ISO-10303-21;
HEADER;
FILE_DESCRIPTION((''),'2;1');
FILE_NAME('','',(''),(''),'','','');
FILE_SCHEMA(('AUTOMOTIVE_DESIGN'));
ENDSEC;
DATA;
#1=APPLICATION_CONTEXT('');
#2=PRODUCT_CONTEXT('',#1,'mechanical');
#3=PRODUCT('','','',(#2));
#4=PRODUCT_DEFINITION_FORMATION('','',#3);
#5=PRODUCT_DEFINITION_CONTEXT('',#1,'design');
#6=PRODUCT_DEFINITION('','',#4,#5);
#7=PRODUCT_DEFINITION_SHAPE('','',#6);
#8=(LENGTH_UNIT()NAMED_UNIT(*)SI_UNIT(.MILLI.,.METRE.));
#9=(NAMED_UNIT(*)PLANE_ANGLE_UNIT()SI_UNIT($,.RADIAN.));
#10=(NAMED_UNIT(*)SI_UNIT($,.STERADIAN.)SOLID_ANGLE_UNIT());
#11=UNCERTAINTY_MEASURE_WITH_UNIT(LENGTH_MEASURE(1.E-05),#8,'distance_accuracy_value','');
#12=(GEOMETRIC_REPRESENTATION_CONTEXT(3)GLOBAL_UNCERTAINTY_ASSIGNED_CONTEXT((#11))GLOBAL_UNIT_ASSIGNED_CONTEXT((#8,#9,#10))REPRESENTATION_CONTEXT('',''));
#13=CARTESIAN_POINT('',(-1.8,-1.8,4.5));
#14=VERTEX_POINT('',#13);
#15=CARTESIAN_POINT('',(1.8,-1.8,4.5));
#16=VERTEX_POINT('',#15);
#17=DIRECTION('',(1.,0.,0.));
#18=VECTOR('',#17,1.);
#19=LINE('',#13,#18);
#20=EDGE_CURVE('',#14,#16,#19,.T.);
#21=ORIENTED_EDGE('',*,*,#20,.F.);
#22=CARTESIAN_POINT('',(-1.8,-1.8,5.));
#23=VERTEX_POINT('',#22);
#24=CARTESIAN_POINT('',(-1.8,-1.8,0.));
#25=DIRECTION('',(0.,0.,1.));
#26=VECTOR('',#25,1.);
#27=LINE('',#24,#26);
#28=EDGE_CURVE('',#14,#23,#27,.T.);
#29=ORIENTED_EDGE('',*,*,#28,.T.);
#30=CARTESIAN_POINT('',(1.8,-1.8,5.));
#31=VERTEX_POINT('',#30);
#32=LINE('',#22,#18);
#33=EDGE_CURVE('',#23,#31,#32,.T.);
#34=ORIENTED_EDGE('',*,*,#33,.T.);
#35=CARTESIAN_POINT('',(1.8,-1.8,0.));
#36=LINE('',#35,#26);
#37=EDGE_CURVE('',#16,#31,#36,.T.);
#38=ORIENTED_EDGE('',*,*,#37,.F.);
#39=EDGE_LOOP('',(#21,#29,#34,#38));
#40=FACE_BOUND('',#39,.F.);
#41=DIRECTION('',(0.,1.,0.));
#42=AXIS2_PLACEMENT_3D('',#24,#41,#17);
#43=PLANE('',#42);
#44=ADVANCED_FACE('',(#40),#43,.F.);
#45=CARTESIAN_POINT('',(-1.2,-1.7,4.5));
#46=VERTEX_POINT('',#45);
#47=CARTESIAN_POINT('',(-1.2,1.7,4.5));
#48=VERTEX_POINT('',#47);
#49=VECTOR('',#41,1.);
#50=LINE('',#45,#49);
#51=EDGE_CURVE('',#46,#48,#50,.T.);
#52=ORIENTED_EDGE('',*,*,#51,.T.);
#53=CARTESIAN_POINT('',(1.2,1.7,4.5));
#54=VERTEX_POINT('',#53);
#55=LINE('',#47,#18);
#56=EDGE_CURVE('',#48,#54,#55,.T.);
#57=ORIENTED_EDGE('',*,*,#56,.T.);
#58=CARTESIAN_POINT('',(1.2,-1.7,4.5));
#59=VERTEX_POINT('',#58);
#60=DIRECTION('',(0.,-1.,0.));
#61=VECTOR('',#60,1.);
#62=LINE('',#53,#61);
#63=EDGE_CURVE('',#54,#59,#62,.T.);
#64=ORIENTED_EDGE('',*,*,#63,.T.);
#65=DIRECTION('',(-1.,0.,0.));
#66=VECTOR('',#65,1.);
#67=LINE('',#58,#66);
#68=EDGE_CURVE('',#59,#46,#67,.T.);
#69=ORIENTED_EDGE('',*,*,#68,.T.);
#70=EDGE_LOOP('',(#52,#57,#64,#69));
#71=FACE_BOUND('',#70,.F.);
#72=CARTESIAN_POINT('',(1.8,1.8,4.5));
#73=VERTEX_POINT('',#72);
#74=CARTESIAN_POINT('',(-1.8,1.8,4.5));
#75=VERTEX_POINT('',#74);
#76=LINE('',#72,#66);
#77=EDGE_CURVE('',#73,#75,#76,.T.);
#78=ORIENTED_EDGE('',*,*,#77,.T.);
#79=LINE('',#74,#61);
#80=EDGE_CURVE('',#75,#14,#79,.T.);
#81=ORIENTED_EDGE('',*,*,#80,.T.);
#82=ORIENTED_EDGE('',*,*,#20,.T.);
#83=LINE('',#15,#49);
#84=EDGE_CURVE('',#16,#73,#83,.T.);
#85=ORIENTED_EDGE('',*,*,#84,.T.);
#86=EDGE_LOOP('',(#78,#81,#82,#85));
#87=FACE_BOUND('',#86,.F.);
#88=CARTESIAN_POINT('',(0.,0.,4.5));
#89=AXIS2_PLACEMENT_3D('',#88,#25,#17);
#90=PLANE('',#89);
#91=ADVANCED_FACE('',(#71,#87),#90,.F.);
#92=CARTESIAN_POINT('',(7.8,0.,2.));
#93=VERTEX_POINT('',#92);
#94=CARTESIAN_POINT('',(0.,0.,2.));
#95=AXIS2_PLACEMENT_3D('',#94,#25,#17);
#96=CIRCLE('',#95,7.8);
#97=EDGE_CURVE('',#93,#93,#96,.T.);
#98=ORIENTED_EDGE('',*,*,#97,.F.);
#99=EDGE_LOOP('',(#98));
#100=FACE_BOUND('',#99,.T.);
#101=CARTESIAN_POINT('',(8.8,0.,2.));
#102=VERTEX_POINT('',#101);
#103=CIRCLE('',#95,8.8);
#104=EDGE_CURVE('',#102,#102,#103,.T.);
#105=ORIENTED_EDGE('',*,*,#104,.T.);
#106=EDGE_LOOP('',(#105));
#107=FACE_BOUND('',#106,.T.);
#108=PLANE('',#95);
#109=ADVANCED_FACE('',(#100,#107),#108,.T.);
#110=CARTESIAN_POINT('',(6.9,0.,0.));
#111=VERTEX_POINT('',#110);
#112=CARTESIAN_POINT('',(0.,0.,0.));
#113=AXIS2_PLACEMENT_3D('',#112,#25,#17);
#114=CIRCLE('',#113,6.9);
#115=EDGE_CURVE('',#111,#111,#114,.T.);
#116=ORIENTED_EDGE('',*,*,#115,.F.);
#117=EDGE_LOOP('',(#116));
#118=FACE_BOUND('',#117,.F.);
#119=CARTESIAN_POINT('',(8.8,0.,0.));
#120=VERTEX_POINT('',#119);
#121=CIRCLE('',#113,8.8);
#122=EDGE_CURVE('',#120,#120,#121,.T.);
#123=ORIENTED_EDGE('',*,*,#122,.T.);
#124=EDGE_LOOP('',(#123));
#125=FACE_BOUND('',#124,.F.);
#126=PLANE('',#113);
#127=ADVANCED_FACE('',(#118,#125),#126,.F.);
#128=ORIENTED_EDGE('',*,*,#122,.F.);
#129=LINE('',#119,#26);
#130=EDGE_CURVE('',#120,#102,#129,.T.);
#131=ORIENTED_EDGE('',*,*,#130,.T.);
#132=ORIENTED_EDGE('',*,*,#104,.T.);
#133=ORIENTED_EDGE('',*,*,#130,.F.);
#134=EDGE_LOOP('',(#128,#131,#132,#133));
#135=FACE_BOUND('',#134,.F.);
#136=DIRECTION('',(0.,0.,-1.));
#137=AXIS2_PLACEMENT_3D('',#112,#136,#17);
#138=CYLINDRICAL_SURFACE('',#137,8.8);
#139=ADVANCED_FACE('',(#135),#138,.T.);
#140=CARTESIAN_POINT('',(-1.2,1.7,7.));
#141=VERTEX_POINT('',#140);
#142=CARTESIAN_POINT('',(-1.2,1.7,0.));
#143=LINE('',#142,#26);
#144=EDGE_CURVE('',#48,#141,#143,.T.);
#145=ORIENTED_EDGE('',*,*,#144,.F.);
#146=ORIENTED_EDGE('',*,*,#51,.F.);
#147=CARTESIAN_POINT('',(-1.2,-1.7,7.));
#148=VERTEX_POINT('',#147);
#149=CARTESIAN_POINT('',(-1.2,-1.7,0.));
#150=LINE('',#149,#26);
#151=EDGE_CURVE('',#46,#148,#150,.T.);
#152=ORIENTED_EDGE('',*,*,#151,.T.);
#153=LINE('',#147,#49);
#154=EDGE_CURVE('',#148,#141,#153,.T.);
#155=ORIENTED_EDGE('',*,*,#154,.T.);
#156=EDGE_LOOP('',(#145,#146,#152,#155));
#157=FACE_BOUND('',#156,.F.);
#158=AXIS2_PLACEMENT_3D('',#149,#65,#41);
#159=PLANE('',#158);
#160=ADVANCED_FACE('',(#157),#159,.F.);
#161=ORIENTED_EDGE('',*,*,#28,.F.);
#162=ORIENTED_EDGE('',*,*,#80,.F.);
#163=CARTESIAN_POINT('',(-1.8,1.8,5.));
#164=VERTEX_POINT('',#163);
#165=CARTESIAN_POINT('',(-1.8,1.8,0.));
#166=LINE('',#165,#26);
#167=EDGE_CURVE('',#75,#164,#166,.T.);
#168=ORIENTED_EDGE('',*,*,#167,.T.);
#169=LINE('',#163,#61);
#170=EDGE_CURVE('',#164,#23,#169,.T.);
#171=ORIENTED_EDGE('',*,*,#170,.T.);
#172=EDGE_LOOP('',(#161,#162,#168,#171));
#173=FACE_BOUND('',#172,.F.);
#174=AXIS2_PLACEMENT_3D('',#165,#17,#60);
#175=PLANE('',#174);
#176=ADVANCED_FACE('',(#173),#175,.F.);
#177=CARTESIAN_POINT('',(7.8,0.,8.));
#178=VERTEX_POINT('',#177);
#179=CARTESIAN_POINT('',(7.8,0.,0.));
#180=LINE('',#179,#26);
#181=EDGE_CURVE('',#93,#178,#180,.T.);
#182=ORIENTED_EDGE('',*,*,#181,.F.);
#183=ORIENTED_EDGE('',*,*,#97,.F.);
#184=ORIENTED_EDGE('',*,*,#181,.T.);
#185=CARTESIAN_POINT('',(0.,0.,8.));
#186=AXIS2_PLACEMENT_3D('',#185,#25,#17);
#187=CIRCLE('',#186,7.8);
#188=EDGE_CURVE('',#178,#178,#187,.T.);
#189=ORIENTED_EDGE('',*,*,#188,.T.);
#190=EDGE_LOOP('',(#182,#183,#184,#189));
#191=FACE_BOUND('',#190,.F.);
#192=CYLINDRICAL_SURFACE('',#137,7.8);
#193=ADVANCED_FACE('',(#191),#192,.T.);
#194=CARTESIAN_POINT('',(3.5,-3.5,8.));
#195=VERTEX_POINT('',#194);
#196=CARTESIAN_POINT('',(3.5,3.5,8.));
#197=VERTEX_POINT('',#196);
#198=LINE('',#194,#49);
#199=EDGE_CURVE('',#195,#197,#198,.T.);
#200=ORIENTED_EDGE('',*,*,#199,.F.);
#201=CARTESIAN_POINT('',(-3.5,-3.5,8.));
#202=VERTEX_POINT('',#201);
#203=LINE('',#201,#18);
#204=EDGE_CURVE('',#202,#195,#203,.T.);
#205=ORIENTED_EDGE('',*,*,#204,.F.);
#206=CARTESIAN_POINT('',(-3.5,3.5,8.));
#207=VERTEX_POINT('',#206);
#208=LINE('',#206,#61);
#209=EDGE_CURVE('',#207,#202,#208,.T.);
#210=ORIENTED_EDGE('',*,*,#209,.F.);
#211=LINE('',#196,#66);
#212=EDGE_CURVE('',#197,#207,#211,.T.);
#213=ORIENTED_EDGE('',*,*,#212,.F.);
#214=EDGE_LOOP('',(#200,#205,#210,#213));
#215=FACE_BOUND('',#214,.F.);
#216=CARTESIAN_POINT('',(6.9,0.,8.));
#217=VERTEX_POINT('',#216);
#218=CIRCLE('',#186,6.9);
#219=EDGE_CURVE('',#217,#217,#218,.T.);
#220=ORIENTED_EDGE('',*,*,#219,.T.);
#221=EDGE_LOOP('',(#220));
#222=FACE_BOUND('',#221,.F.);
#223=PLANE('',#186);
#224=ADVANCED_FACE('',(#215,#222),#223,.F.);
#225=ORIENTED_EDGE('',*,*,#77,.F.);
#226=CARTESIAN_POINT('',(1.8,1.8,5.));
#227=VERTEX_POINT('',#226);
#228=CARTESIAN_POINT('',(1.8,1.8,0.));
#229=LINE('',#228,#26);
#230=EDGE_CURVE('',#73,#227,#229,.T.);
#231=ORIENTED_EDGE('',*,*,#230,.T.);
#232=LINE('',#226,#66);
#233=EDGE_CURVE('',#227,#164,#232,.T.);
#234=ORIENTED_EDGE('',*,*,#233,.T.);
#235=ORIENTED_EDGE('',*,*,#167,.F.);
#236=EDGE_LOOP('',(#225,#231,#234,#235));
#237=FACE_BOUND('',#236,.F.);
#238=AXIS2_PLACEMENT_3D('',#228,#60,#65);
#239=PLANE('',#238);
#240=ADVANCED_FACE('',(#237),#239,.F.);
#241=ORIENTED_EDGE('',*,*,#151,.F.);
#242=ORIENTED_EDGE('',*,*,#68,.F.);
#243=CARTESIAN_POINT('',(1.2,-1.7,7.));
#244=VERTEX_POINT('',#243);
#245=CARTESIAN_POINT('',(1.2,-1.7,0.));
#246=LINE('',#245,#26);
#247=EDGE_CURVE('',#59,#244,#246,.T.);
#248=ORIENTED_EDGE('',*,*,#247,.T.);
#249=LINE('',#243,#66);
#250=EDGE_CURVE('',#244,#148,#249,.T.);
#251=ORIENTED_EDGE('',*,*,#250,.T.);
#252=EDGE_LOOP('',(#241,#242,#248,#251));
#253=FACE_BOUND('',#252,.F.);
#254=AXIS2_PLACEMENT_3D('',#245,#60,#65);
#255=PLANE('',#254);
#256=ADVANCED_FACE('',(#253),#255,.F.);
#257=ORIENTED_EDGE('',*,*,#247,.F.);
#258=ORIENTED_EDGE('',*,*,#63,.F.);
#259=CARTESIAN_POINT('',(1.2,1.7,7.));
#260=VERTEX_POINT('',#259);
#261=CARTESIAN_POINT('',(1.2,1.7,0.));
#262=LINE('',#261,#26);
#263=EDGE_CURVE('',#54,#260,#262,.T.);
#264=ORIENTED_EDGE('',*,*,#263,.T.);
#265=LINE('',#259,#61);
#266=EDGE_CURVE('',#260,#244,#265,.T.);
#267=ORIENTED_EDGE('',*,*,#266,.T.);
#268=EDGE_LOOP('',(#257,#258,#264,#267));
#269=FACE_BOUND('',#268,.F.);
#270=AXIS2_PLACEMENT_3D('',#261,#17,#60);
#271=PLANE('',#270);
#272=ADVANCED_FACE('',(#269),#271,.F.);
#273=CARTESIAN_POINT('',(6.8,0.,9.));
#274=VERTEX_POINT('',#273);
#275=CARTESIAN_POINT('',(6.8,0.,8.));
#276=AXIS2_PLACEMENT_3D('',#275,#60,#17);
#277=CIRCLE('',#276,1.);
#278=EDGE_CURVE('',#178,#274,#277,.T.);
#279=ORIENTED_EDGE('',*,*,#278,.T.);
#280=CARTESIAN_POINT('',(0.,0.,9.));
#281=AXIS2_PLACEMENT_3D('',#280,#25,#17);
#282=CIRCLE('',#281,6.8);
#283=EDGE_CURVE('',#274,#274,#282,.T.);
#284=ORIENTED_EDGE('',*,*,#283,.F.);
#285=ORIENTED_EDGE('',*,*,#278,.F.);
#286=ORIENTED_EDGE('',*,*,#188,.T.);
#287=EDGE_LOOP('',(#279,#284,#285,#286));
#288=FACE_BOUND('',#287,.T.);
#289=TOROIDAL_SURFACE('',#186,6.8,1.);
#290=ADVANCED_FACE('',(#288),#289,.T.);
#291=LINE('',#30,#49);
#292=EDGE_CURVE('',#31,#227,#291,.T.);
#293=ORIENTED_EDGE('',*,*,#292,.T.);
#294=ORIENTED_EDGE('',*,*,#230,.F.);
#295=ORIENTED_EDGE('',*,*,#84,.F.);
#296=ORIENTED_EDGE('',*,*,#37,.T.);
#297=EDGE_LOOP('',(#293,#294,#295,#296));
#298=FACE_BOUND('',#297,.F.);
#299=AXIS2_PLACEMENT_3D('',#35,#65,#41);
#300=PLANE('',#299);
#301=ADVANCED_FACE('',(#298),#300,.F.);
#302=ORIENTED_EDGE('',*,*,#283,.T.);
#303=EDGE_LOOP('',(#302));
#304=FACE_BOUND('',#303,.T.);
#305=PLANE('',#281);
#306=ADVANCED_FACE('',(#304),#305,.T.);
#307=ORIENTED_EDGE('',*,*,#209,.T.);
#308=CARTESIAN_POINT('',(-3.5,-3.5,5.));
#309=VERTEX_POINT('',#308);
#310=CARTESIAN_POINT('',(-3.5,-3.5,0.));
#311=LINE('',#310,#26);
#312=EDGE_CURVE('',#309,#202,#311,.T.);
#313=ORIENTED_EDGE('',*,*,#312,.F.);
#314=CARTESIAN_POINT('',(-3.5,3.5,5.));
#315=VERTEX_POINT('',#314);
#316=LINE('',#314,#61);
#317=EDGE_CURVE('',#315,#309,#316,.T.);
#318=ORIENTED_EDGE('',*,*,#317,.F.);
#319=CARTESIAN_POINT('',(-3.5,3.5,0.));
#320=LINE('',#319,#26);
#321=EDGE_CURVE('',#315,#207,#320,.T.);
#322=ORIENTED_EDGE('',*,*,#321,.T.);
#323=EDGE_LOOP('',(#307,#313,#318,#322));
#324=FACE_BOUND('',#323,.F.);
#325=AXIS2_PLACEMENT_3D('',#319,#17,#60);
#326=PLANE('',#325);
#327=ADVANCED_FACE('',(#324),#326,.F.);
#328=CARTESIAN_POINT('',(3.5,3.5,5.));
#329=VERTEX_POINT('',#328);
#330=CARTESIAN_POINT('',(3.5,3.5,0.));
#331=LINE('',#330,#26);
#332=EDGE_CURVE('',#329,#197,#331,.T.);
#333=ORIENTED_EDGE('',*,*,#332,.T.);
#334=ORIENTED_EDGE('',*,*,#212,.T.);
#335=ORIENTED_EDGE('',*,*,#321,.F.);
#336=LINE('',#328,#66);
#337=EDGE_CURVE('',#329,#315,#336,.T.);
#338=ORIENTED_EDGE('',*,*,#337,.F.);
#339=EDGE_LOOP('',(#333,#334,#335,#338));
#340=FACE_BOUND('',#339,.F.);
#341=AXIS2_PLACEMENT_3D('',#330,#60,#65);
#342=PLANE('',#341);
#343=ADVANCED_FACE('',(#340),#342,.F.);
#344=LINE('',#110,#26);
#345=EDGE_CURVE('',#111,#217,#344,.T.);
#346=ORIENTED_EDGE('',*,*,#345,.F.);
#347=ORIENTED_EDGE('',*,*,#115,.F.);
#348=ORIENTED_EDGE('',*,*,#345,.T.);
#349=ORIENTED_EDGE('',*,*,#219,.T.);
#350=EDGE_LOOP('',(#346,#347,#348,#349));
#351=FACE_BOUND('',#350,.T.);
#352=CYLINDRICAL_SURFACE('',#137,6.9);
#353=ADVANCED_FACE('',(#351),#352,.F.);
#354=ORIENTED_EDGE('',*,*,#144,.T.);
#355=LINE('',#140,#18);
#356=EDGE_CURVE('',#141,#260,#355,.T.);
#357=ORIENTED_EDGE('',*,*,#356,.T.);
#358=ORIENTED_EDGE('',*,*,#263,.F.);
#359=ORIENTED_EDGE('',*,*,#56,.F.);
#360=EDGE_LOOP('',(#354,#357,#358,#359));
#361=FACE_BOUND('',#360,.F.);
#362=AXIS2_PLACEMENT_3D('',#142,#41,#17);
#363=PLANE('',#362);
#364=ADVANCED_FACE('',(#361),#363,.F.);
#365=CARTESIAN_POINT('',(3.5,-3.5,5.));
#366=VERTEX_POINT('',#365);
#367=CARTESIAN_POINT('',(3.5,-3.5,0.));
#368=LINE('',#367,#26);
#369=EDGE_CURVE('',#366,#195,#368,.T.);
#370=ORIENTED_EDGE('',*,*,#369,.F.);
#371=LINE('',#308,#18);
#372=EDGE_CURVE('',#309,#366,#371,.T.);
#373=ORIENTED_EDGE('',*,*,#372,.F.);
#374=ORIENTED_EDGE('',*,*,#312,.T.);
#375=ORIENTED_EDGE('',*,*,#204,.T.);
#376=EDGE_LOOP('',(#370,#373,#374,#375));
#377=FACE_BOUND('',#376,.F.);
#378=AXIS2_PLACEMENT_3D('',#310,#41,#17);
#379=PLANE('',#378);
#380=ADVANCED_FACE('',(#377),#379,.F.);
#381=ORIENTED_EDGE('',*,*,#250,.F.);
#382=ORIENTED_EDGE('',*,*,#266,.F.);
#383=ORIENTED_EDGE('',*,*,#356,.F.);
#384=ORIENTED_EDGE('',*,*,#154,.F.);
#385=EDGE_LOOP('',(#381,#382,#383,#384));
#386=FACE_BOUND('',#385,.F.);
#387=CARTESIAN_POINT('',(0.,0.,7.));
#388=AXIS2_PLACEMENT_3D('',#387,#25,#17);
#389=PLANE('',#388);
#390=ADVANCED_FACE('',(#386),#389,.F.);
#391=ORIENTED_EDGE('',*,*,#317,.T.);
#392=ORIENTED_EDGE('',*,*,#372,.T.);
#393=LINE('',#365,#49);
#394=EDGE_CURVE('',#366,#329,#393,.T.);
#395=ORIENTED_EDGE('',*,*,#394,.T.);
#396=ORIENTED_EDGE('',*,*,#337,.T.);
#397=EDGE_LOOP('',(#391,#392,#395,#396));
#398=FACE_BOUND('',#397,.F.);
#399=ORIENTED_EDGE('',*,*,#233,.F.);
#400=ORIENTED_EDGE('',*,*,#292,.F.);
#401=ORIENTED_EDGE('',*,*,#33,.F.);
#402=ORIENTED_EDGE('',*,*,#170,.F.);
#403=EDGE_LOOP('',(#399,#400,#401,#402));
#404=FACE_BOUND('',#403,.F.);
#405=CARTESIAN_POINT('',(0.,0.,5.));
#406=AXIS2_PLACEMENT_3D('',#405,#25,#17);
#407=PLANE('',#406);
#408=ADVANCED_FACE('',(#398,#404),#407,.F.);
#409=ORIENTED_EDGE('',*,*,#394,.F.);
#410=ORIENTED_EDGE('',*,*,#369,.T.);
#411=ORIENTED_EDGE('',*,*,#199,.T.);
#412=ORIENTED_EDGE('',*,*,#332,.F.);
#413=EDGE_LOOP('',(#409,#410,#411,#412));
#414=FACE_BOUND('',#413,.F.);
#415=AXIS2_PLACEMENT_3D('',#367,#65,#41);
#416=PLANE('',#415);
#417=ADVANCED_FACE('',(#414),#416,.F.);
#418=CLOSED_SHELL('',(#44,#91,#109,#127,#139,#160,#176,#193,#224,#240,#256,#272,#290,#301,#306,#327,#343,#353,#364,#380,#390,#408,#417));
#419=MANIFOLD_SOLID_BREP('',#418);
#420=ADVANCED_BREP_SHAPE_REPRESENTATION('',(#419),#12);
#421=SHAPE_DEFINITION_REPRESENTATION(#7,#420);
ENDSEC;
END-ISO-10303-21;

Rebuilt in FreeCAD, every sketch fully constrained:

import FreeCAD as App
import Part
import Sketcher
from FreeCAD import Vector


def edges_at(feature, points):
    """Names of the edges that pass closest to the given points."""
    edges = feature.Shape.Edges
    near = lambda p: min(range(len(edges)), key=lambda i: edges[i].distToShape(Part.Vertex(*p))[0])
    return sorted({f"Edge{near(p) + 1}" for p in points})


def add_polygon(sketch, points):
    """Adds a closed chain of lines whose ends are joined by coincident constraints."""
    first, n = sketch.GeometryCount, len(points)
    for a, b in zip(points, points[1:] + points[:1]):
        sketch.addGeometry(Part.LineSegment(App.Vector(*a, 0), App.Vector(*b, 0)), False)
    for i in range(n):
        sketch.addConstraint(Sketcher.Constraint("Coincident", first + i, 2, first + (i + 1) % n, 1))

doc = App.newDocument("Part")
body = doc.addObject("PartDesign::Body", "Body")

sketch1 = body.newObject("Sketcher::SketchObject", "Sketch")
sketch1.AttachmentSupport = (doc.getObject("XY_Plane"), [""])
sketch1.MapMode = "FlatFace"
sketch1.addGeometry(Part.Circle(Vector(0, 0, 0), Vector(0, 0, 1), 8), False)
sketch1.addConstraint(Sketcher.Constraint("Coincident", 0, 3, -1, 1))
sketch1.addConstraint(Sketcher.Constraint("Diameter", 0, 15.6))
pad1 = body.newObject("PartDesign::Pad", "Pad")
pad1.Profile = sketch1
pad1.Length = 9

sketch2 = body.newObject("Sketcher::SketchObject", "Sketch001")
sketch2.AttachmentSupport = (doc.getObject("XY_Plane"), [""])
sketch2.MapMode = "FlatFace"
sketch2.addGeometry(Part.Circle(Vector(0, 0, 0), Vector(0, 0, 1), 9), False)
sketch2.addGeometry(Part.Circle(Vector(0, 0, 0), Vector(0, 0, 1), 8), False)
sketch2.addConstraint(Sketcher.Constraint("Coincident", 0, 3, -1, 1))
sketch2.addConstraint(Sketcher.Constraint("Coincident", 1, 3, -1, 1))
sketch2.addConstraint(Sketcher.Constraint("Diameter", 0, 17.6))
sketch2.addConstraint(Sketcher.Constraint("Diameter", 1, 15.6))
pad2 = body.newObject("PartDesign::Pad", "Pad001")
pad2.Profile = sketch2
pad2.Length = 2

sketch3 = body.newObject("Sketcher::SketchObject", "Sketch002")
sketch3.AttachmentSupport = (doc.getObject("XY_Plane"), [""])
sketch3.MapMode = "FlatFace"
sketch3.addGeometry(Part.Circle(Vector(0, 0, 0), Vector(0, 0, 1), 7), False)
add_polygon(sketch3, [(4, -4), (-4, -4), (-4, 4), (4, 4)])
sketch3.addConstraint(Sketcher.Constraint("Horizontal", 1))
sketch3.addConstraint(Sketcher.Constraint("Vertical", 2))
sketch3.addConstraint(Sketcher.Constraint("Horizontal", 3))
sketch3.addConstraint(Sketcher.Constraint("Vertical", 4))
sketch3.addConstraint(Sketcher.Constraint("Coincident", 0, 3, -1, 1))
sketch3.addConstraint(Sketcher.Constraint("Symmetric", 1, 2, 3, 2, -1, 1))
sketch3.addConstraint(Sketcher.Constraint("Equal", 3, 2))
sketch3.addConstraint(Sketcher.Constraint("Diameter", 0, 13.8))
sketch3.addConstraint(Sketcher.Constraint("DistanceX", 1, 2, 1, 1, 7.0))
pocket1 = body.newObject("PartDesign::Pocket", "Pocket")
pocket1.Profile = sketch3
pocket1.Length = 8
pocket1.Reversed = True

sketch4 = body.newObject("Sketcher::SketchObject", "Sketch003")
sketch4.AttachmentSupport = (doc.getObject("XY_Plane"), [""])
sketch4.MapMode = "FlatFace"
add_polygon(sketch4, [(-3.5, 3.5), (-3.5, -3.5), (3.5, -3.5), (3.5, 3.5)])
add_polygon(sketch4, [(1.8, -1.8), (-1.8, -1.8), (-1.8, 1.8), (1.8, 1.8)])
sketch4.addConstraint(Sketcher.Constraint("Vertical", 0))
sketch4.addConstraint(Sketcher.Constraint("Horizontal", 1))
sketch4.addConstraint(Sketcher.Constraint("Vertical", 2))
sketch4.addConstraint(Sketcher.Constraint("Horizontal", 3))
sketch4.addConstraint(Sketcher.Constraint("Horizontal", 4))
sketch4.addConstraint(Sketcher.Constraint("Vertical", 5))
sketch4.addConstraint(Sketcher.Constraint("Horizontal", 6))
sketch4.addConstraint(Sketcher.Constraint("Vertical", 7))
sketch4.addConstraint(Sketcher.Constraint("Symmetric", 0, 2, 2, 2, -1, 1))
sketch4.addConstraint(Sketcher.Constraint("Symmetric", 4, 2, 6, 2, -1, 1))
sketch4.addConstraint(Sketcher.Constraint("Equal", 3, 0))
sketch4.addConstraint(Sketcher.Constraint("Equal", 6, 5))
sketch4.addConstraint(Sketcher.Constraint("DistanceX", 1, 1, 1, 2, 7.0))
sketch4.addConstraint(Sketcher.Constraint("DistanceX", 4, 2, 4, 1, 3.6))
pocket2 = body.newObject("PartDesign::Pocket", "Pocket001")
pocket2.Profile = sketch4
pocket2.Length = 5
pocket2.Reversed = True

sketch5 = body.newObject("Sketcher::SketchObject", "Sketch004")
sketch5.AttachmentSupport = (doc.getObject("XY_Plane"), [""])
sketch5.MapMode = "FlatFace"
add_polygon(sketch5, [(-1.8, 1.8), (-1.8, -1.8), (1.8, -1.8), (1.8, 1.8)])
add_polygon(sketch5, [(1.2, 1.7), (1.2, -1.7), (-1.2, -1.7), (-1.2, 1.7)])
sketch5.addConstraint(Sketcher.Constraint("Vertical", 0))
sketch5.addConstraint(Sketcher.Constraint("Horizontal", 1))
sketch5.addConstraint(Sketcher.Constraint("Vertical", 2))
sketch5.addConstraint(Sketcher.Constraint("Horizontal", 3))
sketch5.addConstraint(Sketcher.Constraint("Vertical", 4))
sketch5.addConstraint(Sketcher.Constraint("Horizontal", 5))
sketch5.addConstraint(Sketcher.Constraint("Vertical", 6))
sketch5.addConstraint(Sketcher.Constraint("Horizontal", 7))
sketch5.addConstraint(Sketcher.Constraint("Symmetric", 0, 2, 2, 2, -1, 1))
sketch5.addConstraint(Sketcher.Constraint("Symmetric", 4, 2, 6, 2, -1, 1))
sketch5.addConstraint(Sketcher.Constraint("Equal", 3, 0))
sketch5.addConstraint(Sketcher.Constraint("DistanceX", 1, 1, 1, 2, 3.6))
sketch5.addConstraint(Sketcher.Constraint("DistanceX", 5, 2, 5, 1, 2.4))
sketch5.addConstraint(Sketcher.Constraint("DistanceY", 4, 2, 4, 1, 3.4))
pocket3 = body.newObject("PartDesign::Pocket", "Pocket002")
pocket3.Profile = sketch5
pocket3.Length = 4.5
pocket3.Reversed = True

sketch6 = body.newObject("Sketcher::SketchObject", "Sketch005")
sketch6.AttachmentSupport = (doc.getObject("XY_Plane"), [""])
sketch6.MapMode = "FlatFace"
add_polygon(sketch6, [(-1.2, -1.7), (1.2, -1.7), (1.2, 1.7), (-1.2, 1.7)])
sketch6.addConstraint(Sketcher.Constraint("Horizontal", 0))
sketch6.addConstraint(Sketcher.Constraint("Vertical", 1))
sketch6.addConstraint(Sketcher.Constraint("Horizontal", 2))
sketch6.addConstraint(Sketcher.Constraint("Vertical", 3))
sketch6.addConstraint(Sketcher.Constraint("Symmetric", 0, 2, 2, 2, -1, 1))
sketch6.addConstraint(Sketcher.Constraint("DistanceX", 0, 1, 0, 2, 2.4))
sketch6.addConstraint(Sketcher.Constraint("DistanceY", 1, 1, 1, 2, 3.4))
pocket4 = body.newObject("PartDesign::Pocket", "Pocket003")
pocket4.Profile = sketch6
pocket4.Length = 7
pocket4.Reversed = True
doc.recompute()

fillet = body.newObject("PartDesign::Fillet", "Fillet")
fillet.Base = (pocket4, edges_at(pocket4, [(-7.272, -2.821, 9)]))
fillet.Radius = 1

doc.recompute()
